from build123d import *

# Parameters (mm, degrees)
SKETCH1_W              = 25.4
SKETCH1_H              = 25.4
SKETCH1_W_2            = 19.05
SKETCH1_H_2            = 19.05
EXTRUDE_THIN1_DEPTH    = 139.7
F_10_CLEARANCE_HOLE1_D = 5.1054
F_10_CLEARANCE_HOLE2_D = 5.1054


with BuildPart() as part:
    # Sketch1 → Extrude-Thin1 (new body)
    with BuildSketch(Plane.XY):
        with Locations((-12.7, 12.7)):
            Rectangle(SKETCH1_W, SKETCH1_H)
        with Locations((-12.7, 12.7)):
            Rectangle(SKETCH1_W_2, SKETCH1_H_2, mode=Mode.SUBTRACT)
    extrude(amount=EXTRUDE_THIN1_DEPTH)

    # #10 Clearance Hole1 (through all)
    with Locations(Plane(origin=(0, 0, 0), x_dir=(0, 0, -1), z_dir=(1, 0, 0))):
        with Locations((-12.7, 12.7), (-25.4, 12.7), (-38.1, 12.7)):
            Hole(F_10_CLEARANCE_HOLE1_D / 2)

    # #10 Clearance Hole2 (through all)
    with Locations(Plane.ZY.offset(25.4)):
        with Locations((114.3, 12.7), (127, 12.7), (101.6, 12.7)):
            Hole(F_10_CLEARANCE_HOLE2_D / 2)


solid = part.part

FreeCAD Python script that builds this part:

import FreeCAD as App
import Part
import Sketcher

V = App.Vector
Q = App.Units.Quantity

doc = App.newDocument("Part")
params = doc.addObject("Spreadsheet::Sheet", "Params")
for row, (alias, value) in enumerate([
    ("sketch1_width", "1 in"),
    ("sketch1_width2", "0.75 in"),
    ("pad1_length", "5.5 in"),
    ("sketch2_diameter", "0.201 in"),
    ("hole_diameter", "0.201 in"),
    ("sketch3_diameter", "0.201 in"),
    ("hole2_diameter", "0.201 in"),
], start=1):
    params.set(f"A{row}", alias)
    params.set(f"B{row}", "=" + value)
    params.setAlias(f"B{row}", alias)

body = doc.addObject("PartDesign::Body", "Body")

# Sketch on XY plane
sketch1 = body.newObject("Sketcher::SketchObject", "Sketch")
sketch1.AttachmentSupport = (doc.getObject("XY_Plane"), [""])
sketch1.MapMode = "FlatFace"
sketch1.addGeometry([
    Part.LineSegment(V(-25, 25, 0), V(-25, 0, 0)),  # 0
    Part.LineSegment(V(-25, 0, 0), V(0, 0, 0)),  # 1
    Part.LineSegment(V(0, 0, 0), V(0, 25, 0)),  # 2
    Part.LineSegment(V(0, 25, 0), V(-25, 25, 0)),  # 3
    Part.LineSegment(V(-3, 3, 0), V(-22, 3, 0)),  # 4
    Part.LineSegment(V(-22, 3, 0), V(-22, 22, 0)),  # 5
    Part.LineSegment(V(-22, 22, 0), V(-3, 22, 0)),  # 6
    Part.LineSegment(V(-3, 22, 0), V(-3, 3, 0)),  # 7
], False)
sketch1.addConstraint([
    Sketcher.Constraint("Coincident", 0, 2, 1, 1),
    Sketcher.Constraint("Coincident", 1, 2, 2, 1),
    Sketcher.Constraint("Coincident", 2, 2, 3, 1),
    Sketcher.Constraint("Coincident", 3, 2, 0, 1),
    Sketcher.Constraint("Coincident", 4, 2, 5, 1),
    Sketcher.Constraint("Coincident", 5, 2, 6, 1),
    Sketcher.Constraint("Coincident", 6, 2, 7, 1),
    Sketcher.Constraint("Coincident", 7, 2, 4, 1),
    Sketcher.Constraint("Vertical", 0),
    Sketcher.Constraint("Horizontal", 1),
    Sketcher.Constraint("Vertical", 2),
    Sketcher.Constraint("Horizontal", 3),
    Sketcher.Constraint("Horizontal", 4),
    Sketcher.Constraint("Vertical", 5),
    Sketcher.Constraint("Horizontal", 6),
    Sketcher.Constraint("Vertical", 7),
    Sketcher.Constraint("Coincident", 1, 2, -1, 1),
    Sketcher.Constraint("Equal", 3, 0),
    Sketcher.Constraint("Equal", 6, 5),
    Sketcher.Constraint("DistanceX", 1, 1, 1, 2, Q("1 in")),
    Sketcher.Constraint("DistanceX", 4, 2, 4, 1, Q("0.75 in")),
    Sketcher.Constraint("DistanceX", 4, 2, -1, 1, Q("0.875 in")),
    Sketcher.Constraint("DistanceY", -1, 1, 4, 2, Q("0.125 in")),
])
sketch1.setExpression("Constraints[19]", "Params.sketch1_width")
sketch1.setExpression("Constraints[20]", "Params.sketch1_width2")
pad1 = body.newObject("PartDesign::Pad", "Pad")
pad1.Profile = sketch1
pad1.setExpression("Length", "Params.pad1_length")

# Sketch on YZ plane
sketch2 = body.newObject("Sketcher::SketchObject", "Sketch001")
sketch2.AttachmentSupport = (doc.getObject("YZ_Plane"), [""])
sketch2.MapMode = "FlatFace"
sketch2.addGeometry([
    Part.Circle(V(12.7, 12.7, 0), V(0, 0, 1), 2.6),
    Part.Circle(V(12.7, 25.4, 0), V(0, 0, 1), 2.6),
    Part.Circle(V(12.7, 38.1, 0), V(0, 0, 1), 2.6),
], False)
sketch2.addConstraint([
    Sketcher.Constraint("Equal", 0, 1),
    Sketcher.Constraint("Equal", 1, 2),
    Sketcher.Constraint("Vertical", 0, 3, 1, 3),
    Sketcher.Constraint("Vertical", 1, 3, 2, 3),
    Sketcher.Constraint("Diameter", 0, Q("0.201 in")),
    Sketcher.Constraint("DistanceY", -1, 1, 1, 3, Q("1 in")),
    Sketcher.Constraint("DistanceY", 0, 3, 2, 3, Q("1 in")),
    Sketcher.Constraint("DistanceX", -1, 1, 0, 3, Q("0.5 in")),
    Sketcher.Constraint("DistanceY", -1, 1, 0, 3, Q("0.5 in")),
])
sketch2.setExpression("Constraints[4]", "Params.sketch2_diameter")
doc.recompute()
hole = body.newObject("PartDesign::Hole", "Hole")
hole.Profile = sketch2
hole.ThreadType = "None"
hole.setExpression("Diameter", "Params.hole_diameter")
hole.DepthType = "ThroughAll"

# Sketch on YZ plane
sketch3 = body.newObject("Sketcher::SketchObject", "Sketch002")
sketch3.AttachmentSupport = (doc.getObject("YZ_Plane"), [""])
sketch3.MapMode = "FlatFace"
sketch3.AttachmentOffset = App.Placement(V(0, 0, -1 * 25.4), App.Rotation())
sketch3.addGeometry([
    Part.Circle(V(12.7, 114.3, 0), V(0, 0, 1), 2.6),
    Part.Circle(V(12.7, 127, 0), V(0, 0, 1), 2.6),
    Part.Circle(V(12.7, 101.6, 0), V(0, 0, 1), 2.6),
], False)
sketch3.addConstraint([
    Sketcher.Constraint("Equal", 0, 1),
    Sketcher.Constraint("Equal", 1, 2),
    Sketcher.Constraint("Vertical", 0, 3, 1, 3),
    Sketcher.Constraint("Vertical", 1, 3, 2, 3),
    Sketcher.Constraint("Diameter", 0, Q("0.201 in")),
    Sketcher.Constraint("DistanceY", -1, 1, 1, 3, Q("5 in")),
    Sketcher.Constraint("DistanceY", -1, 1, 2, 3, Q("4 in")),
    Sketcher.Constraint("DistanceX", -1, 1, 0, 3, Q("0.5 in")),
    Sketcher.Constraint("DistanceY", -1, 1, 0, 3, Q("4.5 in")),
])
sketch3.setExpression("Constraints[4]", "Params.sketch3_diameter")
doc.recompute()
hole2 = body.newObject("PartDesign::Hole", "Hole001")
hole2.Profile = sketch3
hole2.ThreadType = "None"
hole2.setExpression("Diameter", "Params.hole2_diameter")
hole2.DepthType = "ThroughAll"
hole2.Reversed = True

doc.recompute()
